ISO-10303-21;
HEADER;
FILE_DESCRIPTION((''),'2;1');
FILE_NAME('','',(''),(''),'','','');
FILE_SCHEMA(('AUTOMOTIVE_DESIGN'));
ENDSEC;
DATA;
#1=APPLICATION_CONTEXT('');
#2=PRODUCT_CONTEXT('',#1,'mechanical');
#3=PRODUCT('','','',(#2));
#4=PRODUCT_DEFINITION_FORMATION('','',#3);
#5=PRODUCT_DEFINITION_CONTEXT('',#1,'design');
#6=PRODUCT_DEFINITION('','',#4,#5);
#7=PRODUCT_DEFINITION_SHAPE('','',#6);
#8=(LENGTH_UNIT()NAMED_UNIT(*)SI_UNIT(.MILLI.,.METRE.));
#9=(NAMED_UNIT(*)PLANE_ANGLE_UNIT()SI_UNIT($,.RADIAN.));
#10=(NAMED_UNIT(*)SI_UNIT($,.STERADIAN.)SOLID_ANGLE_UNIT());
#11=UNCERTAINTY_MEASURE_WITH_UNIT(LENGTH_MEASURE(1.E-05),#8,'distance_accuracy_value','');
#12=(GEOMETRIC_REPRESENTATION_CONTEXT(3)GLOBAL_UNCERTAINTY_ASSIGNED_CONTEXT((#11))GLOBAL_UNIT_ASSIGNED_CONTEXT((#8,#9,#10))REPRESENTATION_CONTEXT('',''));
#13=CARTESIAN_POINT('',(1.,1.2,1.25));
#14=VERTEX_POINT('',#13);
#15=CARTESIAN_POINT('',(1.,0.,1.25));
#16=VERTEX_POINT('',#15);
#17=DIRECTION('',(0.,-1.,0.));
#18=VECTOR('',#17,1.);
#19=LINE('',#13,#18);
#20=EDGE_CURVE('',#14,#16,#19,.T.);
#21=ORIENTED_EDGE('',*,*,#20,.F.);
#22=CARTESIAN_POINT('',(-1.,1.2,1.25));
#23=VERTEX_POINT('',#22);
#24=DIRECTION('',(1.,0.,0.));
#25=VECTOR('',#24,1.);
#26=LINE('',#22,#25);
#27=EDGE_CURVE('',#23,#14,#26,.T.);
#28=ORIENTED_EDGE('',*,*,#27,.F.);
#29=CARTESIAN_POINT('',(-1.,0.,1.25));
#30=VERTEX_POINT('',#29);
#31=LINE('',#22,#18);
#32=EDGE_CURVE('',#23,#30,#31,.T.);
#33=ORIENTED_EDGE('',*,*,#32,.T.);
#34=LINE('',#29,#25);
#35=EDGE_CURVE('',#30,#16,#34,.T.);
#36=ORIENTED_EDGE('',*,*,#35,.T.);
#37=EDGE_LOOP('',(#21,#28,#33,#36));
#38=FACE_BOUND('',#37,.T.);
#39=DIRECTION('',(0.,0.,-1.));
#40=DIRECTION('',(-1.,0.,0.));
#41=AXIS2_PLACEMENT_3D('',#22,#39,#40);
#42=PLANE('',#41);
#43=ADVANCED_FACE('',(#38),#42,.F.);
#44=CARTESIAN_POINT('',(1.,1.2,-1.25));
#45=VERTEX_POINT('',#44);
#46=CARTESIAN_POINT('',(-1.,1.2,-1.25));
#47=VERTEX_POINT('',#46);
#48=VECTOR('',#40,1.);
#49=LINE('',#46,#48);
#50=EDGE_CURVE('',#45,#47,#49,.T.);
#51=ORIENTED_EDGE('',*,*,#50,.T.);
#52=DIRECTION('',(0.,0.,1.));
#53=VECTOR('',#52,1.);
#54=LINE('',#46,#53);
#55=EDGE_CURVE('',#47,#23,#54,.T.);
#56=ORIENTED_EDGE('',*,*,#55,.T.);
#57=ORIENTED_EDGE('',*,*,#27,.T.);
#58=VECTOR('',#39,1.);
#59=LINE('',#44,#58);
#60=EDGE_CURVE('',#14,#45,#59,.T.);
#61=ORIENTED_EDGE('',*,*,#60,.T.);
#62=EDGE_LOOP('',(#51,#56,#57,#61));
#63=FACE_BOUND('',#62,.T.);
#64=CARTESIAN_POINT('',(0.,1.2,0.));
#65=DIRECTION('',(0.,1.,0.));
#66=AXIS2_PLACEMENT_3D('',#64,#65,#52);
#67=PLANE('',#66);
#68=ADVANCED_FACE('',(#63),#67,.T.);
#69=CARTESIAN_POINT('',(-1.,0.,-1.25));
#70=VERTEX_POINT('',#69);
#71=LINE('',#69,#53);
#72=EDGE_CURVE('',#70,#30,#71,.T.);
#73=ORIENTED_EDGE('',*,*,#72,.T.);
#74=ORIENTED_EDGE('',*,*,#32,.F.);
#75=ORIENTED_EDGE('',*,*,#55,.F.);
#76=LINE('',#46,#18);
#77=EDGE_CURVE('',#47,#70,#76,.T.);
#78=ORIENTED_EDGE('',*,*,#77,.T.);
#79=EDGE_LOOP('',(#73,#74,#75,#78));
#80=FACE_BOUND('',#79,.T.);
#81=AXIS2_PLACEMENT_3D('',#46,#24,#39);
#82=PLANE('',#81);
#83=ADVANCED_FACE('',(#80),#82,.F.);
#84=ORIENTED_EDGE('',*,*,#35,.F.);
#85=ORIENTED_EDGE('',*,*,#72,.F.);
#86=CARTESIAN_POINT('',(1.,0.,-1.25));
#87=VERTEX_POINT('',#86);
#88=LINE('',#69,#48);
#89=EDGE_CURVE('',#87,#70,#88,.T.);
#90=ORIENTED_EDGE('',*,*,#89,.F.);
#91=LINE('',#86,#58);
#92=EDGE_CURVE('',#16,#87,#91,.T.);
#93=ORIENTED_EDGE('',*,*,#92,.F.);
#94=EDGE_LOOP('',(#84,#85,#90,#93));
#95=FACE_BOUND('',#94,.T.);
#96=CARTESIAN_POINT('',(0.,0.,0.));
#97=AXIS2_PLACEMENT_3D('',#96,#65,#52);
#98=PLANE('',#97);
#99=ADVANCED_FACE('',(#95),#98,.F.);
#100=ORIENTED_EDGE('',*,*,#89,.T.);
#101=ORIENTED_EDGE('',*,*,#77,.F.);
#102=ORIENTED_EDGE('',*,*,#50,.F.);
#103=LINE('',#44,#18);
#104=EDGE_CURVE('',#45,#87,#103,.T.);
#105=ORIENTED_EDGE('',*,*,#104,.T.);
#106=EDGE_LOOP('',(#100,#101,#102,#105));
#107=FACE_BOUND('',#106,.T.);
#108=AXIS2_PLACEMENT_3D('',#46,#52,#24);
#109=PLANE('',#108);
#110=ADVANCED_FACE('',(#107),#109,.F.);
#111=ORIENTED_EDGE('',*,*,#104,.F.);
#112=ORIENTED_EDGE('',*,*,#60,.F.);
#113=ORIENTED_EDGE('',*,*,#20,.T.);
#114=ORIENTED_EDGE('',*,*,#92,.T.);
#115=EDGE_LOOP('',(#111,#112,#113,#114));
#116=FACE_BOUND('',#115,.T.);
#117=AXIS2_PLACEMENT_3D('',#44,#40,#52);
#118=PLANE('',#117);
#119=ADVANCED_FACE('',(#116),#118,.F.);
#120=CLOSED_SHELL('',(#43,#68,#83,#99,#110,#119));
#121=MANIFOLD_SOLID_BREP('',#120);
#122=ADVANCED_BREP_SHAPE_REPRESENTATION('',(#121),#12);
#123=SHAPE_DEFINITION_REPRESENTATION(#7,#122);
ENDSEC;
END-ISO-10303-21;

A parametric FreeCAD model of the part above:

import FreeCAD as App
import Part
import Sketcher
from FreeCAD import Vector
Q = App.Units.Quantity

doc = App.newDocument("Part")
body = doc.addObject("PartDesign::Body", "Body")

# Sketch on XZ plane
sketch1 = body.newObject("Sketcher::SketchObject", "Sketch")
sketch1.AttachmentSupport = (doc.getObject("XZ_Plane"), [""])
sketch1.MapMode = "FlatFace"
sketch1.addGeometry(Part.LineSegment(Vector(-1, -1.2, 0), Vector(-1, 1.2, 0)), False)
sketch1.addGeometry(Part.LineSegment(Vector(-1, 1.2, 0), Vector(1, 1.2, 0)), False)
sketch1.addGeometry(Part.LineSegment(Vector(1, 1.2, 0), Vector(1, -1.2, 0)), False)
sketch1.addGeometry(Part.LineSegment(Vector(1, -1.2, 0), Vector(-1, -1.2, 0)), False)
sketch1.addConstraint(Sketcher.Constraint("Coincident", 0, 2, 1, 1))
sketch1.addConstraint(Sketcher.Constraint("Coincident", 1, 2, 2, 1))
sketch1.addConstraint(Sketcher.Constraint("Coincident", 2, 2, 3, 1))
sketch1.addConstraint(Sketcher.Constraint("Coincident", 3, 2, 0, 1))
sketch1.addConstraint(Sketcher.Constraint("Vertical", 0))
sketch1.addConstraint(Sketcher.Constraint("Horizontal", 1))
sketch1.addConstraint(Sketcher.Constraint("Vertical", 2))
sketch1.addConstraint(Sketcher.Constraint("Horizontal", 3))
sketch1.addConstraint(Sketcher.Constraint("Symmetric", 0, 2, 2, 2, -1, 1))
sketch1.addConstraint(Sketcher.Constraint("DistanceX", 1, 1, 1, 2, Q("2 mm")))
sketch1.addConstraint(Sketcher.Constraint("DistanceY", 0, 1, 0, 2, Q("2.5 mm")))
pad1 = body.newObject("PartDesign::Pad", "Pad")
pad1.Profile = sketch1
pad1.Length = 1.2
pad1.Reversed = True

doc.recompute()
